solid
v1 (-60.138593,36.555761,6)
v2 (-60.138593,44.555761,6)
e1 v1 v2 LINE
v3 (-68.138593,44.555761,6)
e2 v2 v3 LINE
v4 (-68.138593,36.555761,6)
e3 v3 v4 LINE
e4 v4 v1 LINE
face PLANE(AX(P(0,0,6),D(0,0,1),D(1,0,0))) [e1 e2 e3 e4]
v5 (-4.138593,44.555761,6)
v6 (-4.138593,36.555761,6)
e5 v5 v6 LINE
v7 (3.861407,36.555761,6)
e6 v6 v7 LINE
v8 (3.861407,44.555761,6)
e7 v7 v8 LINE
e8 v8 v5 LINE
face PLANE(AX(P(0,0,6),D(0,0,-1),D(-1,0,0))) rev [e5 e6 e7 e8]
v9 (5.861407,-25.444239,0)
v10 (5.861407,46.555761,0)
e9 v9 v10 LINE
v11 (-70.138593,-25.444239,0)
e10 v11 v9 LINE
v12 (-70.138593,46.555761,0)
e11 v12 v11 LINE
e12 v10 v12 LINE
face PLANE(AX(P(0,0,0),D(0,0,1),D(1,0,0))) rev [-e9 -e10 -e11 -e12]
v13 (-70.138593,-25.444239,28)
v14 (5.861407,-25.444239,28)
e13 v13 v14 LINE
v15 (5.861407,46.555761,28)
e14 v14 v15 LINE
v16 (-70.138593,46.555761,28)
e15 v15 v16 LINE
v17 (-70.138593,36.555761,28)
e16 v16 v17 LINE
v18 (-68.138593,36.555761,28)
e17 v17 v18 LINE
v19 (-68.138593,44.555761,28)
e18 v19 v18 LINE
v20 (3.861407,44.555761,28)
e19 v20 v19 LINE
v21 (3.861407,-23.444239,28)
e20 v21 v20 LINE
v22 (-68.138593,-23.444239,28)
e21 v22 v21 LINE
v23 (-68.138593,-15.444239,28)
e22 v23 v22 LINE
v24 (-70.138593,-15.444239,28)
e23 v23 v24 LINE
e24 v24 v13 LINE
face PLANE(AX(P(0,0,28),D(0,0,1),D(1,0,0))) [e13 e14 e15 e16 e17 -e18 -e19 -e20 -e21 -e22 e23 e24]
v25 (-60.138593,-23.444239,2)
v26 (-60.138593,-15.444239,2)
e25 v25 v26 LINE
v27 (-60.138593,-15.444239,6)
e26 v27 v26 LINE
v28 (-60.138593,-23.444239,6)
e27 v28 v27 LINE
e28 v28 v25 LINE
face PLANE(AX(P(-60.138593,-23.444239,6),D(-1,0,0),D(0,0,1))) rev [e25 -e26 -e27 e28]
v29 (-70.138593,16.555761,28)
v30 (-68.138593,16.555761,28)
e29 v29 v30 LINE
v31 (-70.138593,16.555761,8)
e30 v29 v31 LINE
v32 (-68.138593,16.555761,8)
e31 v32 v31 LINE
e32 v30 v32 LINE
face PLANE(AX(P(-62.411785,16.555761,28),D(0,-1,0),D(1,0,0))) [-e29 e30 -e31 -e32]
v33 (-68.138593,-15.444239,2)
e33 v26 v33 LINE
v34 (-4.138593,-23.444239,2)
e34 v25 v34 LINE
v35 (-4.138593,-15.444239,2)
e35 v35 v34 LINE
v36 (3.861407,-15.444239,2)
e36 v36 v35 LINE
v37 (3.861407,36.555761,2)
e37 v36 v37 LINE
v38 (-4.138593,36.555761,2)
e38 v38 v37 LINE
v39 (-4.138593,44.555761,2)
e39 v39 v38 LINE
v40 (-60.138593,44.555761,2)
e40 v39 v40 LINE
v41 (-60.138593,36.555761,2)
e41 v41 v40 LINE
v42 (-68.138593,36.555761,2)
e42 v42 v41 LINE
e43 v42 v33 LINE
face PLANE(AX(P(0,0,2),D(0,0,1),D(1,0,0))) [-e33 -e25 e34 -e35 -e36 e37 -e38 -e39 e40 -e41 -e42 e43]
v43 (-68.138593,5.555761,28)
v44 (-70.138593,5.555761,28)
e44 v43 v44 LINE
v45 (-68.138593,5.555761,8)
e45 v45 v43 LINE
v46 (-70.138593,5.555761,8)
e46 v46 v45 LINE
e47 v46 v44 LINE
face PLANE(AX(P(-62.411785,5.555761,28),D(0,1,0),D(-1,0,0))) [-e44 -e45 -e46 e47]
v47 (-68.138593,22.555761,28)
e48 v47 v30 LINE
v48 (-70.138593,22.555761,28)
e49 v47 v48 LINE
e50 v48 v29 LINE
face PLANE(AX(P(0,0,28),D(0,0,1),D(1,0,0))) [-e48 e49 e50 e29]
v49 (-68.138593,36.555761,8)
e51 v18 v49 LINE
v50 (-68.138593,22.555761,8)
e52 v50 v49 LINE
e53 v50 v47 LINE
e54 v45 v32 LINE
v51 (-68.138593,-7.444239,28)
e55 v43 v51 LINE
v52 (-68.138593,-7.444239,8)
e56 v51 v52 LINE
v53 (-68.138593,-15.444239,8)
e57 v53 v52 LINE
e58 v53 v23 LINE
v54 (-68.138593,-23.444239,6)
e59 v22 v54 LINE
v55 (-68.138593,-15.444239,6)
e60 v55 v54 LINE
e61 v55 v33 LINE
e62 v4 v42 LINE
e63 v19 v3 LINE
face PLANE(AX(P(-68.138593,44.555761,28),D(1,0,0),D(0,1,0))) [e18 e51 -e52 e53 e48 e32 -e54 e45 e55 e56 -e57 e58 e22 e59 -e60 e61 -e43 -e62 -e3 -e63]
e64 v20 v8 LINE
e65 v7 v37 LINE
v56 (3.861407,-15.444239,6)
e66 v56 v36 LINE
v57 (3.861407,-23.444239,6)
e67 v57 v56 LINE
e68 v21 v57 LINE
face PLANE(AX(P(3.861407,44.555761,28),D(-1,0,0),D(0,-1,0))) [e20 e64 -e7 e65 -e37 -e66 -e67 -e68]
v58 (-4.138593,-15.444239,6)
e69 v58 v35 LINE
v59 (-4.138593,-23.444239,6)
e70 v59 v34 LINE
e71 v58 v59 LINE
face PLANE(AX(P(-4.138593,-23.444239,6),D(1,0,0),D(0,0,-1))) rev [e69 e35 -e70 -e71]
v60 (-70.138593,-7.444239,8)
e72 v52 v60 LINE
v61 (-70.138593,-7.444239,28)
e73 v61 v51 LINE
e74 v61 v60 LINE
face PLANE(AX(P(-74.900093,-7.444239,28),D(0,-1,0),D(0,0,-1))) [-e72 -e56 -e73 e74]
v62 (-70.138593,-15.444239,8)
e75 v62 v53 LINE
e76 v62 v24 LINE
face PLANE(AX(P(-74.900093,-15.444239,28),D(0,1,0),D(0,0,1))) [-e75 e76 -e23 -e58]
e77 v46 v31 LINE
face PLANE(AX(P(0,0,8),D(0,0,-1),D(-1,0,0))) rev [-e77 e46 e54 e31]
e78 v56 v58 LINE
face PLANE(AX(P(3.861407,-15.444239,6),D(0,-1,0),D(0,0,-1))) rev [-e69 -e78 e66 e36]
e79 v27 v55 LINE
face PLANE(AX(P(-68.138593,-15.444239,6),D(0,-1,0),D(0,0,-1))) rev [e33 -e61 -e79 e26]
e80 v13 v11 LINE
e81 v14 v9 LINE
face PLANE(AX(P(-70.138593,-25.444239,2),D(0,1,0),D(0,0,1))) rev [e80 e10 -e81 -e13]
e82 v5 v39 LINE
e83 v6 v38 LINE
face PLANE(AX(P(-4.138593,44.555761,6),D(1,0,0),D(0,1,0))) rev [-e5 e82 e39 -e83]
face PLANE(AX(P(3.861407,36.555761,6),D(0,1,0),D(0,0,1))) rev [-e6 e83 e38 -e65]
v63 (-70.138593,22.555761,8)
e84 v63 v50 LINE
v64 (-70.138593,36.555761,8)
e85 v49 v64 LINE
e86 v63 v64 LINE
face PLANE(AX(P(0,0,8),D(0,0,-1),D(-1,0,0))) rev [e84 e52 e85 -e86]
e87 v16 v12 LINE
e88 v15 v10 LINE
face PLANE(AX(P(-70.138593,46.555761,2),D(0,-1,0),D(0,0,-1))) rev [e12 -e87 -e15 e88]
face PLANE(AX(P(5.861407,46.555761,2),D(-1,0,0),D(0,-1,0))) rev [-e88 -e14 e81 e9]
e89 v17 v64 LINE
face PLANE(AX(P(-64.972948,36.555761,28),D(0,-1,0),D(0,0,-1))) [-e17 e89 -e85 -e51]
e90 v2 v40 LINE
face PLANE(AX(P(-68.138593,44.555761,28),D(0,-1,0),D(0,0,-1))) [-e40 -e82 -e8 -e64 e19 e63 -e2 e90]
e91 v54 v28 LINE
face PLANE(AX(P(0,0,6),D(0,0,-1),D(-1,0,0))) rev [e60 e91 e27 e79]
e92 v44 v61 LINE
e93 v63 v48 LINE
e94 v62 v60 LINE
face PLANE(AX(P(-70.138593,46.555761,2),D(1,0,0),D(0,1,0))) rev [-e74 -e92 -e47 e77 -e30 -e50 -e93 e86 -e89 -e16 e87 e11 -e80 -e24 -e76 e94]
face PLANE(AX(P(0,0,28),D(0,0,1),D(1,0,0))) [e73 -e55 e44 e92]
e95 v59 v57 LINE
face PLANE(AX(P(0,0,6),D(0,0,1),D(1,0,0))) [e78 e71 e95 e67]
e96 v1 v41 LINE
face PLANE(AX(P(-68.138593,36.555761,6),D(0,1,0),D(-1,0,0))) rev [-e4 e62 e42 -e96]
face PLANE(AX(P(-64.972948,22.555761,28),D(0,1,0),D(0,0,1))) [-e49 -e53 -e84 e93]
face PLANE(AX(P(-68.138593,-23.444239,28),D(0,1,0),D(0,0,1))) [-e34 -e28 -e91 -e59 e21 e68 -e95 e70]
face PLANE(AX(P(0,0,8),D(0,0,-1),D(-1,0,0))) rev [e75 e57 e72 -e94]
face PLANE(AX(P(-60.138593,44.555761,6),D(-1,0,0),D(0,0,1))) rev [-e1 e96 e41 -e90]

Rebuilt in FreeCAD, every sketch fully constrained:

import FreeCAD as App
import Part
import Sketcher

V = App.Vector
Q = App.Units.Quantity

doc = App.newDocument("Part")
body = doc.addObject("PartDesign::Body", "Body")

# Sketch on XY plane
sketch1 = body.newObject("Sketcher::SketchObject", "Sketch")
sketch1.AttachmentSupport = (doc.getObject("XY_Plane"), [""])
sketch1.MapMode = "FlatFace"
sketch1.addGeometry(Part.LineSegment(V(-70, 47, 0), V(-70, -25, 0)), False)
sketch1.addGeometry(Part.LineSegment(V(-70, -25, 0), V(6, -25, 0)), False)
sketch1.addGeometry(Part.LineSegment(V(6, -25, 0), V(6, 47, 0)), False)
sketch1.addGeometry(Part.LineSegment(V(6, 47, 0), V(-70, 47, 0)), False)
sketch1.addConstraint(Sketcher.Constraint("Coincident", 0, 2, 1, 1))
sketch1.addConstraint(Sketcher.Constraint("Coincident", 1, 2, 2, 1))
sketch1.addConstraint(Sketcher.Constraint("Coincident", 2, 2, 3, 1))
sketch1.addConstraint(Sketcher.Constraint("Coincident", 3, 2, 0, 1))
sketch1.addConstraint(Sketcher.Constraint("Vertical", 0))
sketch1.addConstraint(Sketcher.Constraint("Horizontal", 1))
sketch1.addConstraint(Sketcher.Constraint("Vertical", 2))
sketch1.addConstraint(Sketcher.Constraint("Horizontal", 3))
sketch1.addConstraint(Sketcher.Constraint("DistanceX", 1, 1, 1, 2, Q("76 mm")))
sketch1.addConstraint(Sketcher.Constraint("DistanceY", 0, 2, 0, 1, Q("72 mm")))
sketch1.addConstraint(Sketcher.Constraint("DistanceY", 0, 2, -1, 1, Q("25.444239 mm")))
sketch1.addConstraint(Sketcher.Constraint("DistanceX", 0, 2, -1, 1, Q("70.138593 mm")))
pad1 = body.newObject("PartDesign::Pad", "Pad")
pad1.Profile = sketch1
pad1.Length = 2

# Sketch on XY plane
sketch2 = body.newObject("Sketcher::SketchObject", "Sketch001")
sketch2.AttachmentSupport = (doc.getObject("XY_Plane"), [""])
sketch2.MapMode = "FlatFace"
sketch2.AttachmentOffset = App.Placement(V(0, 0, 2), App.Rotation())
sketch2.addGeometry(Part.LineSegment(V(-70, 47, 0), V(-70, -25, 0)), False)
sketch2.addGeometry(Part.LineSegment(V(-70, -25, 0), V(6, -25, 0)), False)
sketch2.addGeometry(Part.LineSegment(V(6, -25, 0), V(6, 47, 0)), False)
sketch2.addGeometry(Part.LineSegment(V(6, 47, 0), V(-70, 47, 0)), False)
sketch2.addGeometry(Part.LineSegment(V(4, -23, 0), V(-68, -23, 0)), False)
sketch2.addGeometry(Part.LineSegment(V(-68, -23, 0), V(-68, 45, 0)), False)
sketch2.addGeometry(Part.LineSegment(V(-68, 45, 0), V(4, 45, 0)), False)
sketch2.addGeometry(Part.LineSegment(V(4, 45, 0), V(4, -23, 0)), False)
sketch2.addConstraint(Sketcher.Constraint("Coincident", 0, 2, 1, 1))
sketch2.addConstraint(Sketcher.Constraint("Coincident", 1, 2, 2, 1))
sketch2.addConstraint(Sketcher.Constraint("Coincident", 2, 2, 3, 1))
sketch2.addConstraint(Sketcher.Constraint("Coincident", 3, 2, 0, 1))
sketch2.addConstraint(Sketcher.Constraint("Coincident", 4, 2, 5, 1))
sketch2.addConstraint(Sketcher.Constraint("Coincident", 5, 2, 6, 1))
sketch2.addConstraint(Sketcher.Constraint("Coincident", 6, 2, 7, 1))
sketch2.addConstraint(Sketcher.Constraint("Coincident", 7, 2, 4, 1))
sketch2.addConstraint(Sketcher.Constraint("Vertical", 0))
sketch2.addConstraint(Sketcher.Constraint("Horizontal", 1))
sketch2.addConstraint(Sketcher.Constraint("Vertical", 2))
sketch2.addConstraint(Sketcher.Constraint("Horizontal", 3))
sketch2.addConstraint(Sketcher.Constraint("Horizontal", 4))
sketch2.addConstraint(Sketcher.Constraint("Vertical", 5))
sketch2.addConstraint(Sketcher.Constraint("Horizontal", 6))
sketch2.addConstraint(Sketcher.Constraint("Vertical", 7))
sketch2.addConstraint(Sketcher.Constraint("Equal", 6, 0))
sketch2.addConstraint(Sketcher.Constraint("DistanceX", 1, 1, 1, 2, Q("76 mm")))
sketch2.addConstraint(Sketcher.Constraint("DistanceX", 4, 2, 4, 1, Q("72 mm")))
sketch2.addConstraint(Sketcher.Constraint("DistanceY", 5, 1, 5, 2, Q("68 mm")))
sketch2.addConstraint(Sketcher.Constraint("DistanceX", 0, 2, 4, 2, Q("2 mm")))
sketch2.addConstraint(Sketcher.Constraint("DistanceY", 0, 2, 4, 2, Q("2 mm")))
sketch2.addConstraint(Sketcher.Constraint("DistanceY", 0, 2, -1, 1, Q("25.444239 mm")))
sketch2.addConstraint(Sketcher.Constraint("DistanceX", 0, 2, -1, 1, Q("70.138593 mm")))
pad2 = body.newObject("PartDesign::Pad", "Pad001")
pad2.Profile = sketch2
pad2.Length = 26

# Sketch on XY plane
sketch3 = body.newObject("Sketcher::SketchObject", "Sketch002")
sketch3.AttachmentSupport = (doc.getObject("XY_Plane"), [""])
sketch3.MapMode = "FlatFace"
sketch3.AttachmentOffset = App.Placement(V(0, 0, 2), App.Rotation())
sketch3.addGeometry(Part.LineSegment(V(-68, 45, 0), V(-68, 37, 0)), False)
sketch3.addGeometry(Part.LineSegment(V(-68, 37, 0), V(-60, 37, 0)), False)
sketch3.addGeometry(Part.LineSegment(V(-60, 37, 0), V(-60, 45, 0)), False)
sketch3.addGeometry(Part.LineSegment(V(-60, 45, 0), V(-68, 45, 0)), False)
sketch3.addGeometry(Part.LineSegment(V(-4, -15, 0), V(-4, -23, 0)), False)
sketch3.addGeometry(Part.LineSegment(V(-4, -23, 0), V(4, -23, 0)), False)
sketch3.addGeometry(Part.LineSegment(V(4, -23, 0), V(4, -15, 0)), False)
sketch3.addGeometry(Part.LineSegment(V(4, -15, 0), V(-4, -15, 0)), False)
sketch3.addGeometry(Part.LineSegment(V(-4, 45, 0), V(-4, 37, 0)), False)
sketch3.addGeometry(Part.LineSegment(V(-4, 37, 0), V(4, 37, 0)), False)
sketch3.addGeometry(Part.LineSegment(V(4, 37, 0), V(4, 45, 0)), False)
sketch3.addGeometry(Part.LineSegment(V(4, 45, 0), V(-4, 45, 0)), False)
sketch3.addGeometry(Part.LineSegment(V(-68, -15, 0), V(-68, -23, 0)), False)
sketch3.addGeometry(Part.LineSegment(V(-68, -23, 0), V(-60, -23, 0)), False)
sketch3.addGeometry(Part.LineSegment(V(-60, -23, 0), V(-60, -15, 0)), False)
sketch3.addGeometry(Part.LineSegment(V(-60, -15, 0), V(-68, -15, 0)), False)
sketch3.addConstraint(Sketcher.Constraint("Coincident", 0, 2, 1, 1))
sketch3.addConstraint(Sketcher.Constraint("Coincident", 1, 2, 2, 1))
sketch3.addConstraint(Sketcher.Constraint("Coincident", 2, 2, 3, 1))
sketch3.addConstraint(Sketcher.Constraint("Coincident", 3, 2, 0, 1))
sketch3.addConstraint(Sketcher.Constraint("Coincident", 4, 2, 5, 1))
sketch3.addConstraint(Sketcher.Constraint("Coincident", 5, 2, 6, 1))
sketch3.addConstraint(Sketcher.Constraint("Coincident", 6, 2, 7, 1))
sketch3.addConstraint(Sketcher.Constraint("Coincident", 7, 2, 4, 1))
sketch3.addConstraint(Sketcher.Constraint("Coincident", 8, 2, 9, 1))
sketch3.addConstraint(Sketcher.Constraint("Coincident", 9, 2, 10, 1))
sketch3.addConstraint(Sketcher.Constraint("Coincident", 10, 2, 11, 1))
sketch3.addConstraint(Sketcher.Constraint("Coincident", 11, 2, 8, 1))
sketch3.addConstraint(Sketcher.Constraint("Coincident", 12, 2, 13, 1))
sketch3.addConstraint(Sketcher.Constraint("Coincident", 13, 2, 14, 1))
sketch3.addConstraint(Sketcher.Constraint("Coincident", 14, 2, 15, 1))
sketch3.addConstraint(Sketcher.Constraint("Coincident", 15, 2, 12, 1))
sketch3.addConstraint(Sketcher.Constraint("Vertical", 0))
sketch3.addConstraint(Sketcher.Constraint("Horizontal", 1))
sketch3.addConstraint(Sketcher.Constraint("Vertical", 2))
sketch3.addConstraint(Sketcher.Constraint("Horizontal", 3))
sketch3.addConstraint(Sketcher.Constraint("Vertical", 4))
sketch3.addConstraint(Sketcher.Constraint("Horizontal", 5))
sketch3.addConstraint(Sketcher.Constraint("Vertical", 6))
sketch3.addConstraint(Sketcher.Constraint("Horizontal", 7))
sketch3.addConstraint(Sketcher.Constraint("Vertical", 8))
sketch3.addConstraint(Sketcher.Constraint("Horizontal", 9))
sketch3.addConstraint(Sketcher.Constraint("Vertical", 10))
sketch3.addConstraint(Sketcher.Constraint("Horizontal", 11))
sketch3.addConstraint(Sketcher.Constraint("Vertical", 12))
sketch3.addConstraint(Sketcher.Constraint("Horizontal", 13))
sketch3.addConstraint(Sketcher.Constraint("Vertical", 14))
sketch3.addConstraint(Sketcher.Constraint("Horizontal", 15))
sketch3.addConstraint(Sketcher.Constraint("Horizontal", 1, 2, 8, 2))
sketch3.addConstraint(Sketcher.Constraint("Horizontal", 3, 2, 10, 2))
sketch3.addConstraint(Sketcher.Constraint("Horizontal", 5, 2, 12, 2))
sketch3.addConstraint(Sketcher.Constraint("Horizontal", 7, 2, 14, 2))
sketch3.addConstraint(Sketcher.Constraint("Vertical", 7, 2, 8, 2))
sketch3.addConstraint(Sketcher.Constraint("Vertical", 6, 2, 9, 2))
sketch3.addConstraint(Sketcher.Constraint("Vertical", 3, 2, 12, 2))
sketch3.addConstraint(Sketcher.Constraint("Vertical", 2, 2, 13, 2))
sketch3.addConstraint(Sketcher.Constraint("Equal", 3, 5))
sketch3.addConstraint(Sketcher.Constraint("Equal", 15, 0))
sketch3.addConstraint(Sketcher.Constraint("Equal", 2, 4))
sketch3.addConstraint(Sketcher.Constraint("DistanceX", 1, 1, 1, 2, Q("8 mm")))
sketch3.addConstraint(Sketcher.Constraint("DistanceX", 1, 2, 4, 2, Q("56 mm")))
sketch3.addConstraint(Sketcher.Constraint("DistanceY", 4, 2, 1, 2, Q("60 mm")))
sketch3.addConstraint(Sketcher.Constraint("DistanceY", -1, 1, 0, 2, Q("36.555761 mm")))
sketch3.addConstraint(Sketcher.Constraint("DistanceX", 0, 2, -1, 1, Q("68.138593 mm")))
pad3 = body.newObject("PartDesign::Pad", "Pad002")
pad3.Profile = sketch3
pad3.Length = 4

# Sketch on XY plane
sketch4 = body.newObject("Sketcher::SketchObject", "Sketch003")
sketch4.AttachmentSupport = (doc.getObject("XY_Plane"), [""])
sketch4.MapMode = "FlatFace"
sketch4.AttachmentOffset = App.Placement(V(0, 0, 8), App.Rotation())
sketch4.addGeometry(Part.LineSegment(V(-75, -7, 0), V(-75, -15, 0)), False)
sketch4.addGeometry(Part.LineSegment(V(-75, -15, 0), V(-62, -15, 0)), False)
sketch4.addGeometry(Part.LineSegment(V(-62, -15, 0), V(-62, -7, 0)), False)
sketch4.addGeometry(Part.LineSegment(V(-62, -7, 0), V(-75, -7, 0)), False)
sketch4.addGeometry(Part.LineSegment(V(-74, 17, 0), V(-74, 6, 0)), False)
sketch4.addGeometry(Part.LineSegment(V(-74, 6, 0), V(-62, 6, 0)), False)
sketch4.addGeometry(Part.LineSegment(V(-62, 6, 0), V(-62, 17, 0)), False)
sketch4.addGeometry(Part.LineSegment(V(-62, 17, 0), V(-74, 17, 0)), False)
sketch4.addGeometry(Part.LineSegment(V(-77, 37, 0), V(-77, 23, 0)), False)
sketch4.addGeometry(Part.LineSegment(V(-77, 23, 0), V(-65, 23, 0)), False)
sketch4.addGeometry(Part.LineSegment(V(-65, 23, 0), V(-65, 37, 0)), False)
sketch4.addGeometry(Part.LineSegment(V(-65, 37, 0), V(-77, 37, 0)), False)
sketch4.addConstraint(Sketcher.Constraint("Coincident", 0, 2, 1, 1))
sketch4.addConstraint(Sketcher.Constraint("Coincident", 1, 2, 2, 1))
sketch4.addConstraint(Sketcher.Constraint("Coincident", 2, 2, 3, 1))
sketch4.addConstraint(Sketcher.Constraint("Coincident", 3, 2, 0, 1))
sketch4.addConstraint(Sketcher.Constraint("Coincident", 4, 2, 5, 1))
sketch4.addConstraint(Sketcher.Constraint("Coincident", 5, 2, 6, 1))
sketch4.addConstraint(Sketcher.Constraint("Coincident", 6, 2, 7, 1))
sketch4.addConstraint(Sketcher.Constraint("Coincident", 7, 2, 4, 1))
sketch4.addConstraint(Sketcher.Constraint("Coincident", 8, 2, 9, 1))
sketch4.addConstraint(Sketcher.Constraint("Coincident", 9, 2, 10, 1))
sketch4.addConstraint(Sketcher.Constraint("Coincident", 10, 2, 11, 1))
sketch4.addConstraint(Sketcher.Constraint("Coincident", 11, 2, 8, 1))
sketch4.addConstraint(Sketcher.Constraint("Vertical", 0))
sketch4.addConstraint(Sketcher.Constraint("Horizontal", 1))
sketch4.addConstraint(Sketcher.Constraint("Vertical", 2))
sketch4.addConstraint(Sketcher.Constraint("Horizontal", 3))
sketch4.addConstraint(Sketcher.Constraint("Vertical", 4))
sketch4.addConstraint(Sketcher.Constraint("Horizontal", 5))
sketch4.addConstraint(Sketcher.Constraint("Vertical", 6))
sketch4.addConstraint(Sketcher.Constraint("Horizontal", 7))
sketch4.addConstraint(Sketcher.Constraint("Vertical", 8))
sketch4.addConstraint(Sketcher.Constraint("Horizontal", 9))
sketch4.addConstraint(Sketcher.Constraint("Vertical", 10))
sketch4.addConstraint(Sketcher.Constraint("Horizontal", 11))
sketch4.addConstraint(Sketcher.Constraint("Vertical", 2, 2, 5, 2))
sketch4.addConstraint(Sketcher.Constraint("DistanceY", 0, 2, 0, 1, Q("8 mm")))
sketch4.addConstraint(Sketcher.Constraint("DistanceY", 4, 2, 4, 1, Q("11 mm")))
sketch4.addConstraint(Sketcher.Constraint("DistanceY", 8, 2, 8, 1, Q("14 mm")))
sketch4.addConstraint(Sketcher.Constraint("DistanceY", 3, 2, 4, 2, Q("13 mm")))
sketch4.addConstraint(Sketcher.Constraint("DistanceY", 7, 2, 8, 2, Q("6 mm")))
sketch4.addConstraint(Sketcher.Constraint("DistanceX", 1, 1, 1, 2, Q("12.488308 mm")))
sketch4.addConstraint(Sketcher.Constraint("DistanceX", 9, 1, 9, 2, Q("11.945062 mm")))
sketch4.addConstraint(Sketcher.Constraint("DistanceX", 5, 1, 5, 2, Q("11.866166 mm")))
sketch4.addConstraint(Sketcher.Constraint("DistanceY", 0, 2, -1, 1, Q("15.444239 mm")))
sketch4.addConstraint(Sketcher.Constraint("DistanceX", 4, 2, -1, 1, Q("74.277951 mm")))
sketch4.addConstraint(Sketcher.Constraint("DistanceX", 8, 2, -1, 1, Q("76.91801 mm")))
pocket1 = body.newObject("PartDesign::Pocket", "Pocket")
pocket1.Profile = sketch4
pocket1.Type = "ThroughAll"
pocket1.Reversed = True

doc.recompute()
